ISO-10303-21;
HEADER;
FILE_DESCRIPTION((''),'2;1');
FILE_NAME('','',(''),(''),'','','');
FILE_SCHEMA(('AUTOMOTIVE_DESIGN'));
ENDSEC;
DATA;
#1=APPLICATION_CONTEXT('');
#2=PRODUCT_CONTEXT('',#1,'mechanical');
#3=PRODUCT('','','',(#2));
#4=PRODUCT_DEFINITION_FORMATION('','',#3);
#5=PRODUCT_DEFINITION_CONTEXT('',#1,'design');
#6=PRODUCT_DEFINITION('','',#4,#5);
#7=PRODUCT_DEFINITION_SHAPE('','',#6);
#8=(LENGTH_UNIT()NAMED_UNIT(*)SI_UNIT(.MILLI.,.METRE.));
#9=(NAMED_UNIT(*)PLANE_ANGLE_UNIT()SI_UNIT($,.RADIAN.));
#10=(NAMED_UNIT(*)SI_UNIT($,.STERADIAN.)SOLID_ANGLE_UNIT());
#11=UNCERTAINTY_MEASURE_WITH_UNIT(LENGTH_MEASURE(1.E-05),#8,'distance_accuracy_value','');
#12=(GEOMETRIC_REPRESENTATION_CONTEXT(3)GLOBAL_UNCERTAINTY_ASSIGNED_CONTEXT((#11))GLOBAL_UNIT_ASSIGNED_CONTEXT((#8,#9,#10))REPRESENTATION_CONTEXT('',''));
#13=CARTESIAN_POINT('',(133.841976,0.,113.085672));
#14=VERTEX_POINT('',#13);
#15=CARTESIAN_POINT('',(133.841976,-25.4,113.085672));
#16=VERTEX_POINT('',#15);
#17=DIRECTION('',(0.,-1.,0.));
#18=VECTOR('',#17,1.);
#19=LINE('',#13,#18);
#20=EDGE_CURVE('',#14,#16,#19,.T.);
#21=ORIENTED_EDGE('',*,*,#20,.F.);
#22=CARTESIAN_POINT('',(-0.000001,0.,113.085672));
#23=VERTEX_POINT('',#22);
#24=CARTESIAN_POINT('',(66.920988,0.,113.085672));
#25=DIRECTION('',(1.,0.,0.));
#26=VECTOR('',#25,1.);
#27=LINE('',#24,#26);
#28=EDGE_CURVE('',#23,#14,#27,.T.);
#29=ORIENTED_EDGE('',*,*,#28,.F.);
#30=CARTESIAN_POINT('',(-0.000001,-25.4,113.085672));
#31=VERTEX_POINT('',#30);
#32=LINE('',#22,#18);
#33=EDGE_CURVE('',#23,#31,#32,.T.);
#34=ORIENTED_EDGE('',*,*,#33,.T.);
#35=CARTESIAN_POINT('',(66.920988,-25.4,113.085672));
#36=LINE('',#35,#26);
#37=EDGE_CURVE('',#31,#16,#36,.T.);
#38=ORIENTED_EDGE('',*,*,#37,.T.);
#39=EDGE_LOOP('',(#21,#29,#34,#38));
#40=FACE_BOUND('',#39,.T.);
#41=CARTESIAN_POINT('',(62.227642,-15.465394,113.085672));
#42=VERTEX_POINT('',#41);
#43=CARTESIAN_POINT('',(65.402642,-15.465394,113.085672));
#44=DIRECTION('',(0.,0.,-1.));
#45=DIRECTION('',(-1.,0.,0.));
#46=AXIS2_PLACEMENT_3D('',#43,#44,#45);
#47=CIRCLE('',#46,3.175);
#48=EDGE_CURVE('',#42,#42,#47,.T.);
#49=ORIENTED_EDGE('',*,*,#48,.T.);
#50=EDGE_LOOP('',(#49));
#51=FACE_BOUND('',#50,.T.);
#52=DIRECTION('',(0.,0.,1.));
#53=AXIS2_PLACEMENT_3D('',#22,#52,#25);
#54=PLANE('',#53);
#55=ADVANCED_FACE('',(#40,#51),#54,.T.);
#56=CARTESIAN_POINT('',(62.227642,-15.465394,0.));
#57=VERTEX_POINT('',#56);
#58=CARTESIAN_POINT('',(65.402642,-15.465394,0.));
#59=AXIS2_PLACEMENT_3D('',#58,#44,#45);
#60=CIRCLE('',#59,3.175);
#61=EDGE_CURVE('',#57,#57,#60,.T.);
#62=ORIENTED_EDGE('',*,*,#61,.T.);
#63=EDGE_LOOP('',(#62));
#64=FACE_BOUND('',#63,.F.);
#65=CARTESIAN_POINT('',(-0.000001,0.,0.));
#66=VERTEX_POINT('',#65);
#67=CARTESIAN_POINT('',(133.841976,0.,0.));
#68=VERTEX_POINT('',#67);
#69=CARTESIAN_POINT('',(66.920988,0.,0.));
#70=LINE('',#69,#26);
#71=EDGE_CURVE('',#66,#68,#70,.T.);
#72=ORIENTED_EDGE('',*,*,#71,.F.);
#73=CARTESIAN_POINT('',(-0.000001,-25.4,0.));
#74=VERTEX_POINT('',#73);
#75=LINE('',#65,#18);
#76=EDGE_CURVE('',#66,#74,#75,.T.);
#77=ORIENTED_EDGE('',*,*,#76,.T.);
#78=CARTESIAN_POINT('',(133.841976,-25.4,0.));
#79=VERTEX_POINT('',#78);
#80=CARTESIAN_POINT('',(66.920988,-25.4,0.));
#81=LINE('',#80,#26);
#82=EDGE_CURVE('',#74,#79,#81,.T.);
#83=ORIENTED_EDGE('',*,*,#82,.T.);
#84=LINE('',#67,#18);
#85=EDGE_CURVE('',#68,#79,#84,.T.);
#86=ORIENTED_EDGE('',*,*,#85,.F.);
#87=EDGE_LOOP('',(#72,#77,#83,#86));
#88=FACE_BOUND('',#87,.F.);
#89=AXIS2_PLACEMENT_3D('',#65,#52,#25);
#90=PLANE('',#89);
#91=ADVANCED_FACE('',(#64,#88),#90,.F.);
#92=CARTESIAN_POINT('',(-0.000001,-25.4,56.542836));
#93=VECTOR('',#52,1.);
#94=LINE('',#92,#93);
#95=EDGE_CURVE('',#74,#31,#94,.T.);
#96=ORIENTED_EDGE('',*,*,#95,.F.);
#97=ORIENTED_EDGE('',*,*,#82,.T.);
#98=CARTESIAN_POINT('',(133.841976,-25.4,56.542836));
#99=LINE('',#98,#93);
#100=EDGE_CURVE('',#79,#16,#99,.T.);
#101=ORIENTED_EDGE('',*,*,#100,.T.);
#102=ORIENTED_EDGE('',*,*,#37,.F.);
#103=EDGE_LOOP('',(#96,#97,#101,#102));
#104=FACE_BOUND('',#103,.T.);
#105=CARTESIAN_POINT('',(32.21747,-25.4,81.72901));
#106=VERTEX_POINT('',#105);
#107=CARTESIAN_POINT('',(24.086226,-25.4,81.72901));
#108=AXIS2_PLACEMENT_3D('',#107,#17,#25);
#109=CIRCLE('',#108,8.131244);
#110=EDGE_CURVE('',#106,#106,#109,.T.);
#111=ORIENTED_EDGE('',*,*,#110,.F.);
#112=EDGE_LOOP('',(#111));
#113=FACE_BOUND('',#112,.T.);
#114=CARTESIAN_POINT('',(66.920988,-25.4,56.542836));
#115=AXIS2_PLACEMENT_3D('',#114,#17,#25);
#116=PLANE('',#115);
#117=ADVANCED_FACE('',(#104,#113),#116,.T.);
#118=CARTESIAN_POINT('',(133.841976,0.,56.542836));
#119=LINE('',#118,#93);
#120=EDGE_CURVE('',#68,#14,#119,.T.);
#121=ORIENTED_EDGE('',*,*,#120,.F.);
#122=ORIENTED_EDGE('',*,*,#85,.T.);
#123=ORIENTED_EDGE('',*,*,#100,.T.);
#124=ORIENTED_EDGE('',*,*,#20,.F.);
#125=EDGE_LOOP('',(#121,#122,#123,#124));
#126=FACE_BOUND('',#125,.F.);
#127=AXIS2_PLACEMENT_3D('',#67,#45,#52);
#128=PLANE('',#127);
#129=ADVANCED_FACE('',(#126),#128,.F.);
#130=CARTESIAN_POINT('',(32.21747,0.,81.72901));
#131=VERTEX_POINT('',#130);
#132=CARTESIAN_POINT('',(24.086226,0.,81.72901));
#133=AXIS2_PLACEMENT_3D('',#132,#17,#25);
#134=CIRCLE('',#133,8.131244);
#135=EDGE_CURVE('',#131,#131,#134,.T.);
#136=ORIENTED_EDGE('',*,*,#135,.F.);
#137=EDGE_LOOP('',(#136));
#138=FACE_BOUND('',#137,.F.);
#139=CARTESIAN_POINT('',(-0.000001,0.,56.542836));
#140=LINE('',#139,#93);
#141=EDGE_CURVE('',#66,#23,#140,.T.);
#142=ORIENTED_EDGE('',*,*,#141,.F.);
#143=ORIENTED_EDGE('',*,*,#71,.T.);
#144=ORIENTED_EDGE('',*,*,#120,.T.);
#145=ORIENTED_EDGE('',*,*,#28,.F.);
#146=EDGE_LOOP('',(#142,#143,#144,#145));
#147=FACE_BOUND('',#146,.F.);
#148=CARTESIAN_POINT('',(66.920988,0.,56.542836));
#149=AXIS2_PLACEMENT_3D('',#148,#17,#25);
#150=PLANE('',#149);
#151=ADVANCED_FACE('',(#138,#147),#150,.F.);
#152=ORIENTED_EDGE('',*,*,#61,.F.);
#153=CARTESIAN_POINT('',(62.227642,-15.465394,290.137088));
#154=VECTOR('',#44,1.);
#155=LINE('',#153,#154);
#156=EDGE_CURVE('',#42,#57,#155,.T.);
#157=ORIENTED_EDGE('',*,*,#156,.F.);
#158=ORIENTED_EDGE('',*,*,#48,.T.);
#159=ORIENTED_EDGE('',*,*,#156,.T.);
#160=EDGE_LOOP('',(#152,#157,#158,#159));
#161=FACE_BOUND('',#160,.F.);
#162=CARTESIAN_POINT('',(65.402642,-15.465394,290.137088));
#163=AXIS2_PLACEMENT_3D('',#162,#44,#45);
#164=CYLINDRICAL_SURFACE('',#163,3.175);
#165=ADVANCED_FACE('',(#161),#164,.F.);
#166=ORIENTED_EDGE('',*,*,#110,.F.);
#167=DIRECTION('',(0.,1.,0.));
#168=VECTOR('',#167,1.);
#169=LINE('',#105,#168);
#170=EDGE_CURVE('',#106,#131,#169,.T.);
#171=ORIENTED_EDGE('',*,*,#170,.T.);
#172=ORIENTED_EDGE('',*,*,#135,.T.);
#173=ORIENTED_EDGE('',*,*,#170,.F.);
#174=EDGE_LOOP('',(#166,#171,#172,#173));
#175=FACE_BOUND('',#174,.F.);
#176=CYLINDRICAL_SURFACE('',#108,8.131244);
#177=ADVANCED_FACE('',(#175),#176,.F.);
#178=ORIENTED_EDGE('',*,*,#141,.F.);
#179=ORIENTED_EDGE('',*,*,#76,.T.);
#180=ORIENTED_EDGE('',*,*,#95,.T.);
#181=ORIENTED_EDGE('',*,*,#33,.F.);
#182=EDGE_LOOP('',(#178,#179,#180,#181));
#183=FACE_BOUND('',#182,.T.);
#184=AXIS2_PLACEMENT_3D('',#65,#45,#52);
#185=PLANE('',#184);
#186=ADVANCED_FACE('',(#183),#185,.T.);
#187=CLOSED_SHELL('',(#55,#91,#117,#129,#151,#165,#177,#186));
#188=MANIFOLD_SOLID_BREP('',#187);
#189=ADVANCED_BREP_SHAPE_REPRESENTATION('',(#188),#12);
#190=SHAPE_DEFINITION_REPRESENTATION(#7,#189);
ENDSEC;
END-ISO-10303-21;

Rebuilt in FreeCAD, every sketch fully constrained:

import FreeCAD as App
import Part
import Sketcher
Q = App.Units.Quantity

doc = App.newDocument("Part")
body = doc.addObject("PartDesign::Body", "Body")

# Sketch on XZ plane
sketch1 = doc.addObject("Sketcher::SketchObject", "Sketch")
body.addObject(sketch1)
sketch1.AttachmentSupport = (doc.XZ_Plane, [""])
sketch1.MapMode = "FlatFace"
sketch1.addGeometry([
    Part.LineSegment(App.Vector(0, 113, 0), App.Vector(0, 0, 0)),
    Part.LineSegment(App.Vector(0, 0, 0), App.Vector(134, 0, 0)),
    Part.LineSegment(App.Vector(134, 0, 0), App.Vector(134, 113, 0)),
    Part.LineSegment(App.Vector(134, 113, 0), App.Vector(0, 113, 0)),
], False)
sketch1.addConstraint([
    Sketcher.Constraint("Coincident", 0, 2, 1, 1),
    Sketcher.Constraint("Coincident", 1, 2, 2, 1),
    Sketcher.Constraint("Coincident", 2, 2, 3, 1),
    Sketcher.Constraint("Coincident", 3, 2, 0, 1),
    Sketcher.Constraint("Vertical", 0),
    Sketcher.Constraint("Horizontal", 1),
    Sketcher.Constraint("Vertical", 2),
    Sketcher.Constraint("Horizontal", 3),
    Sketcher.Constraint("Coincident", 0, 2, -1, 1),
    Sketcher.Constraint("DistanceX", 1, 1, 1, 2, Q("133.841977 mm")),
    Sketcher.Constraint("DistanceY", 0, 2, 0, 1, Q("113.085672 mm")),
])
pad1 = doc.addObject("PartDesign::Pad", "Pad")
body.addObject(pad1)
pad1.Profile = sketch1
pad1.Length = Q("1 in")

# Sketch on XZ plane
sketch2 = doc.addObject("Sketcher::SketchObject", "Sketch001")
body.addObject(sketch2)
sketch2.AttachmentSupport = (doc.XZ_Plane, [""])
sketch2.MapMode = "FlatFace"
sketch2.AttachmentOffset = App.Placement(App.Vector(0, 0, 1 * 25.4), App.Rotation())
sketch2.addGeometry(Part.Circle(App.Vector(24, 82, 0), App.Vector(0, 0, 1), 8), False)
sketch2.addConstraint([
    Sketcher.Constraint("Diameter", 0, Q("16.262488 mm")),
    Sketcher.Constraint("DistanceY", -1, 1, 0, 3, Q("81.72901 mm")),
    Sketcher.Constraint("DistanceX", -1, 1, 0, 3, Q("24.086226 mm")),
])
pocket1 = doc.addObject("PartDesign::Pocket", "Pocket")
body.addObject(pocket1)
pocket1.Profile = sketch2
pocket1.Length = Q("1 in")

# Sketch on XY plane
sketch3 = doc.addObject("Sketcher::SketchObject", "Sketch002")
body.addObject(sketch3)
sketch3.AttachmentSupport = (doc.XY_Plane, [""])
sketch3.MapMode = "FlatFace"
sketch3.AttachmentOffset = App.Placement(App.Vector(0, 0, 113.085672), App.Rotation())
sketch3.addGeometry(Part.Circle(App.Vector(65.4, -15.5, 0), App.Vector(0, 0, 1), 3.2), False)
sketch3.addConstraint([
    Sketcher.Constraint("Diameter", 0, Q("0.25 in")),
    Sketcher.Constraint("DistanceX", -1, 1, 0, 3, Q("65.402642 mm")),
    Sketcher.Constraint("DistanceY", 0, 3, -1, 1, Q("15.465394 mm")),
])
doc.recompute()
hole = doc.addObject("PartDesign::Hole", "Hole")
body.addObject(hole)
hole.Profile = sketch3
hole.ThreadType = "None"
hole.Diameter = Q("0.25 in")
hole.DepthType = "ThroughAll"

doc.recompute()
